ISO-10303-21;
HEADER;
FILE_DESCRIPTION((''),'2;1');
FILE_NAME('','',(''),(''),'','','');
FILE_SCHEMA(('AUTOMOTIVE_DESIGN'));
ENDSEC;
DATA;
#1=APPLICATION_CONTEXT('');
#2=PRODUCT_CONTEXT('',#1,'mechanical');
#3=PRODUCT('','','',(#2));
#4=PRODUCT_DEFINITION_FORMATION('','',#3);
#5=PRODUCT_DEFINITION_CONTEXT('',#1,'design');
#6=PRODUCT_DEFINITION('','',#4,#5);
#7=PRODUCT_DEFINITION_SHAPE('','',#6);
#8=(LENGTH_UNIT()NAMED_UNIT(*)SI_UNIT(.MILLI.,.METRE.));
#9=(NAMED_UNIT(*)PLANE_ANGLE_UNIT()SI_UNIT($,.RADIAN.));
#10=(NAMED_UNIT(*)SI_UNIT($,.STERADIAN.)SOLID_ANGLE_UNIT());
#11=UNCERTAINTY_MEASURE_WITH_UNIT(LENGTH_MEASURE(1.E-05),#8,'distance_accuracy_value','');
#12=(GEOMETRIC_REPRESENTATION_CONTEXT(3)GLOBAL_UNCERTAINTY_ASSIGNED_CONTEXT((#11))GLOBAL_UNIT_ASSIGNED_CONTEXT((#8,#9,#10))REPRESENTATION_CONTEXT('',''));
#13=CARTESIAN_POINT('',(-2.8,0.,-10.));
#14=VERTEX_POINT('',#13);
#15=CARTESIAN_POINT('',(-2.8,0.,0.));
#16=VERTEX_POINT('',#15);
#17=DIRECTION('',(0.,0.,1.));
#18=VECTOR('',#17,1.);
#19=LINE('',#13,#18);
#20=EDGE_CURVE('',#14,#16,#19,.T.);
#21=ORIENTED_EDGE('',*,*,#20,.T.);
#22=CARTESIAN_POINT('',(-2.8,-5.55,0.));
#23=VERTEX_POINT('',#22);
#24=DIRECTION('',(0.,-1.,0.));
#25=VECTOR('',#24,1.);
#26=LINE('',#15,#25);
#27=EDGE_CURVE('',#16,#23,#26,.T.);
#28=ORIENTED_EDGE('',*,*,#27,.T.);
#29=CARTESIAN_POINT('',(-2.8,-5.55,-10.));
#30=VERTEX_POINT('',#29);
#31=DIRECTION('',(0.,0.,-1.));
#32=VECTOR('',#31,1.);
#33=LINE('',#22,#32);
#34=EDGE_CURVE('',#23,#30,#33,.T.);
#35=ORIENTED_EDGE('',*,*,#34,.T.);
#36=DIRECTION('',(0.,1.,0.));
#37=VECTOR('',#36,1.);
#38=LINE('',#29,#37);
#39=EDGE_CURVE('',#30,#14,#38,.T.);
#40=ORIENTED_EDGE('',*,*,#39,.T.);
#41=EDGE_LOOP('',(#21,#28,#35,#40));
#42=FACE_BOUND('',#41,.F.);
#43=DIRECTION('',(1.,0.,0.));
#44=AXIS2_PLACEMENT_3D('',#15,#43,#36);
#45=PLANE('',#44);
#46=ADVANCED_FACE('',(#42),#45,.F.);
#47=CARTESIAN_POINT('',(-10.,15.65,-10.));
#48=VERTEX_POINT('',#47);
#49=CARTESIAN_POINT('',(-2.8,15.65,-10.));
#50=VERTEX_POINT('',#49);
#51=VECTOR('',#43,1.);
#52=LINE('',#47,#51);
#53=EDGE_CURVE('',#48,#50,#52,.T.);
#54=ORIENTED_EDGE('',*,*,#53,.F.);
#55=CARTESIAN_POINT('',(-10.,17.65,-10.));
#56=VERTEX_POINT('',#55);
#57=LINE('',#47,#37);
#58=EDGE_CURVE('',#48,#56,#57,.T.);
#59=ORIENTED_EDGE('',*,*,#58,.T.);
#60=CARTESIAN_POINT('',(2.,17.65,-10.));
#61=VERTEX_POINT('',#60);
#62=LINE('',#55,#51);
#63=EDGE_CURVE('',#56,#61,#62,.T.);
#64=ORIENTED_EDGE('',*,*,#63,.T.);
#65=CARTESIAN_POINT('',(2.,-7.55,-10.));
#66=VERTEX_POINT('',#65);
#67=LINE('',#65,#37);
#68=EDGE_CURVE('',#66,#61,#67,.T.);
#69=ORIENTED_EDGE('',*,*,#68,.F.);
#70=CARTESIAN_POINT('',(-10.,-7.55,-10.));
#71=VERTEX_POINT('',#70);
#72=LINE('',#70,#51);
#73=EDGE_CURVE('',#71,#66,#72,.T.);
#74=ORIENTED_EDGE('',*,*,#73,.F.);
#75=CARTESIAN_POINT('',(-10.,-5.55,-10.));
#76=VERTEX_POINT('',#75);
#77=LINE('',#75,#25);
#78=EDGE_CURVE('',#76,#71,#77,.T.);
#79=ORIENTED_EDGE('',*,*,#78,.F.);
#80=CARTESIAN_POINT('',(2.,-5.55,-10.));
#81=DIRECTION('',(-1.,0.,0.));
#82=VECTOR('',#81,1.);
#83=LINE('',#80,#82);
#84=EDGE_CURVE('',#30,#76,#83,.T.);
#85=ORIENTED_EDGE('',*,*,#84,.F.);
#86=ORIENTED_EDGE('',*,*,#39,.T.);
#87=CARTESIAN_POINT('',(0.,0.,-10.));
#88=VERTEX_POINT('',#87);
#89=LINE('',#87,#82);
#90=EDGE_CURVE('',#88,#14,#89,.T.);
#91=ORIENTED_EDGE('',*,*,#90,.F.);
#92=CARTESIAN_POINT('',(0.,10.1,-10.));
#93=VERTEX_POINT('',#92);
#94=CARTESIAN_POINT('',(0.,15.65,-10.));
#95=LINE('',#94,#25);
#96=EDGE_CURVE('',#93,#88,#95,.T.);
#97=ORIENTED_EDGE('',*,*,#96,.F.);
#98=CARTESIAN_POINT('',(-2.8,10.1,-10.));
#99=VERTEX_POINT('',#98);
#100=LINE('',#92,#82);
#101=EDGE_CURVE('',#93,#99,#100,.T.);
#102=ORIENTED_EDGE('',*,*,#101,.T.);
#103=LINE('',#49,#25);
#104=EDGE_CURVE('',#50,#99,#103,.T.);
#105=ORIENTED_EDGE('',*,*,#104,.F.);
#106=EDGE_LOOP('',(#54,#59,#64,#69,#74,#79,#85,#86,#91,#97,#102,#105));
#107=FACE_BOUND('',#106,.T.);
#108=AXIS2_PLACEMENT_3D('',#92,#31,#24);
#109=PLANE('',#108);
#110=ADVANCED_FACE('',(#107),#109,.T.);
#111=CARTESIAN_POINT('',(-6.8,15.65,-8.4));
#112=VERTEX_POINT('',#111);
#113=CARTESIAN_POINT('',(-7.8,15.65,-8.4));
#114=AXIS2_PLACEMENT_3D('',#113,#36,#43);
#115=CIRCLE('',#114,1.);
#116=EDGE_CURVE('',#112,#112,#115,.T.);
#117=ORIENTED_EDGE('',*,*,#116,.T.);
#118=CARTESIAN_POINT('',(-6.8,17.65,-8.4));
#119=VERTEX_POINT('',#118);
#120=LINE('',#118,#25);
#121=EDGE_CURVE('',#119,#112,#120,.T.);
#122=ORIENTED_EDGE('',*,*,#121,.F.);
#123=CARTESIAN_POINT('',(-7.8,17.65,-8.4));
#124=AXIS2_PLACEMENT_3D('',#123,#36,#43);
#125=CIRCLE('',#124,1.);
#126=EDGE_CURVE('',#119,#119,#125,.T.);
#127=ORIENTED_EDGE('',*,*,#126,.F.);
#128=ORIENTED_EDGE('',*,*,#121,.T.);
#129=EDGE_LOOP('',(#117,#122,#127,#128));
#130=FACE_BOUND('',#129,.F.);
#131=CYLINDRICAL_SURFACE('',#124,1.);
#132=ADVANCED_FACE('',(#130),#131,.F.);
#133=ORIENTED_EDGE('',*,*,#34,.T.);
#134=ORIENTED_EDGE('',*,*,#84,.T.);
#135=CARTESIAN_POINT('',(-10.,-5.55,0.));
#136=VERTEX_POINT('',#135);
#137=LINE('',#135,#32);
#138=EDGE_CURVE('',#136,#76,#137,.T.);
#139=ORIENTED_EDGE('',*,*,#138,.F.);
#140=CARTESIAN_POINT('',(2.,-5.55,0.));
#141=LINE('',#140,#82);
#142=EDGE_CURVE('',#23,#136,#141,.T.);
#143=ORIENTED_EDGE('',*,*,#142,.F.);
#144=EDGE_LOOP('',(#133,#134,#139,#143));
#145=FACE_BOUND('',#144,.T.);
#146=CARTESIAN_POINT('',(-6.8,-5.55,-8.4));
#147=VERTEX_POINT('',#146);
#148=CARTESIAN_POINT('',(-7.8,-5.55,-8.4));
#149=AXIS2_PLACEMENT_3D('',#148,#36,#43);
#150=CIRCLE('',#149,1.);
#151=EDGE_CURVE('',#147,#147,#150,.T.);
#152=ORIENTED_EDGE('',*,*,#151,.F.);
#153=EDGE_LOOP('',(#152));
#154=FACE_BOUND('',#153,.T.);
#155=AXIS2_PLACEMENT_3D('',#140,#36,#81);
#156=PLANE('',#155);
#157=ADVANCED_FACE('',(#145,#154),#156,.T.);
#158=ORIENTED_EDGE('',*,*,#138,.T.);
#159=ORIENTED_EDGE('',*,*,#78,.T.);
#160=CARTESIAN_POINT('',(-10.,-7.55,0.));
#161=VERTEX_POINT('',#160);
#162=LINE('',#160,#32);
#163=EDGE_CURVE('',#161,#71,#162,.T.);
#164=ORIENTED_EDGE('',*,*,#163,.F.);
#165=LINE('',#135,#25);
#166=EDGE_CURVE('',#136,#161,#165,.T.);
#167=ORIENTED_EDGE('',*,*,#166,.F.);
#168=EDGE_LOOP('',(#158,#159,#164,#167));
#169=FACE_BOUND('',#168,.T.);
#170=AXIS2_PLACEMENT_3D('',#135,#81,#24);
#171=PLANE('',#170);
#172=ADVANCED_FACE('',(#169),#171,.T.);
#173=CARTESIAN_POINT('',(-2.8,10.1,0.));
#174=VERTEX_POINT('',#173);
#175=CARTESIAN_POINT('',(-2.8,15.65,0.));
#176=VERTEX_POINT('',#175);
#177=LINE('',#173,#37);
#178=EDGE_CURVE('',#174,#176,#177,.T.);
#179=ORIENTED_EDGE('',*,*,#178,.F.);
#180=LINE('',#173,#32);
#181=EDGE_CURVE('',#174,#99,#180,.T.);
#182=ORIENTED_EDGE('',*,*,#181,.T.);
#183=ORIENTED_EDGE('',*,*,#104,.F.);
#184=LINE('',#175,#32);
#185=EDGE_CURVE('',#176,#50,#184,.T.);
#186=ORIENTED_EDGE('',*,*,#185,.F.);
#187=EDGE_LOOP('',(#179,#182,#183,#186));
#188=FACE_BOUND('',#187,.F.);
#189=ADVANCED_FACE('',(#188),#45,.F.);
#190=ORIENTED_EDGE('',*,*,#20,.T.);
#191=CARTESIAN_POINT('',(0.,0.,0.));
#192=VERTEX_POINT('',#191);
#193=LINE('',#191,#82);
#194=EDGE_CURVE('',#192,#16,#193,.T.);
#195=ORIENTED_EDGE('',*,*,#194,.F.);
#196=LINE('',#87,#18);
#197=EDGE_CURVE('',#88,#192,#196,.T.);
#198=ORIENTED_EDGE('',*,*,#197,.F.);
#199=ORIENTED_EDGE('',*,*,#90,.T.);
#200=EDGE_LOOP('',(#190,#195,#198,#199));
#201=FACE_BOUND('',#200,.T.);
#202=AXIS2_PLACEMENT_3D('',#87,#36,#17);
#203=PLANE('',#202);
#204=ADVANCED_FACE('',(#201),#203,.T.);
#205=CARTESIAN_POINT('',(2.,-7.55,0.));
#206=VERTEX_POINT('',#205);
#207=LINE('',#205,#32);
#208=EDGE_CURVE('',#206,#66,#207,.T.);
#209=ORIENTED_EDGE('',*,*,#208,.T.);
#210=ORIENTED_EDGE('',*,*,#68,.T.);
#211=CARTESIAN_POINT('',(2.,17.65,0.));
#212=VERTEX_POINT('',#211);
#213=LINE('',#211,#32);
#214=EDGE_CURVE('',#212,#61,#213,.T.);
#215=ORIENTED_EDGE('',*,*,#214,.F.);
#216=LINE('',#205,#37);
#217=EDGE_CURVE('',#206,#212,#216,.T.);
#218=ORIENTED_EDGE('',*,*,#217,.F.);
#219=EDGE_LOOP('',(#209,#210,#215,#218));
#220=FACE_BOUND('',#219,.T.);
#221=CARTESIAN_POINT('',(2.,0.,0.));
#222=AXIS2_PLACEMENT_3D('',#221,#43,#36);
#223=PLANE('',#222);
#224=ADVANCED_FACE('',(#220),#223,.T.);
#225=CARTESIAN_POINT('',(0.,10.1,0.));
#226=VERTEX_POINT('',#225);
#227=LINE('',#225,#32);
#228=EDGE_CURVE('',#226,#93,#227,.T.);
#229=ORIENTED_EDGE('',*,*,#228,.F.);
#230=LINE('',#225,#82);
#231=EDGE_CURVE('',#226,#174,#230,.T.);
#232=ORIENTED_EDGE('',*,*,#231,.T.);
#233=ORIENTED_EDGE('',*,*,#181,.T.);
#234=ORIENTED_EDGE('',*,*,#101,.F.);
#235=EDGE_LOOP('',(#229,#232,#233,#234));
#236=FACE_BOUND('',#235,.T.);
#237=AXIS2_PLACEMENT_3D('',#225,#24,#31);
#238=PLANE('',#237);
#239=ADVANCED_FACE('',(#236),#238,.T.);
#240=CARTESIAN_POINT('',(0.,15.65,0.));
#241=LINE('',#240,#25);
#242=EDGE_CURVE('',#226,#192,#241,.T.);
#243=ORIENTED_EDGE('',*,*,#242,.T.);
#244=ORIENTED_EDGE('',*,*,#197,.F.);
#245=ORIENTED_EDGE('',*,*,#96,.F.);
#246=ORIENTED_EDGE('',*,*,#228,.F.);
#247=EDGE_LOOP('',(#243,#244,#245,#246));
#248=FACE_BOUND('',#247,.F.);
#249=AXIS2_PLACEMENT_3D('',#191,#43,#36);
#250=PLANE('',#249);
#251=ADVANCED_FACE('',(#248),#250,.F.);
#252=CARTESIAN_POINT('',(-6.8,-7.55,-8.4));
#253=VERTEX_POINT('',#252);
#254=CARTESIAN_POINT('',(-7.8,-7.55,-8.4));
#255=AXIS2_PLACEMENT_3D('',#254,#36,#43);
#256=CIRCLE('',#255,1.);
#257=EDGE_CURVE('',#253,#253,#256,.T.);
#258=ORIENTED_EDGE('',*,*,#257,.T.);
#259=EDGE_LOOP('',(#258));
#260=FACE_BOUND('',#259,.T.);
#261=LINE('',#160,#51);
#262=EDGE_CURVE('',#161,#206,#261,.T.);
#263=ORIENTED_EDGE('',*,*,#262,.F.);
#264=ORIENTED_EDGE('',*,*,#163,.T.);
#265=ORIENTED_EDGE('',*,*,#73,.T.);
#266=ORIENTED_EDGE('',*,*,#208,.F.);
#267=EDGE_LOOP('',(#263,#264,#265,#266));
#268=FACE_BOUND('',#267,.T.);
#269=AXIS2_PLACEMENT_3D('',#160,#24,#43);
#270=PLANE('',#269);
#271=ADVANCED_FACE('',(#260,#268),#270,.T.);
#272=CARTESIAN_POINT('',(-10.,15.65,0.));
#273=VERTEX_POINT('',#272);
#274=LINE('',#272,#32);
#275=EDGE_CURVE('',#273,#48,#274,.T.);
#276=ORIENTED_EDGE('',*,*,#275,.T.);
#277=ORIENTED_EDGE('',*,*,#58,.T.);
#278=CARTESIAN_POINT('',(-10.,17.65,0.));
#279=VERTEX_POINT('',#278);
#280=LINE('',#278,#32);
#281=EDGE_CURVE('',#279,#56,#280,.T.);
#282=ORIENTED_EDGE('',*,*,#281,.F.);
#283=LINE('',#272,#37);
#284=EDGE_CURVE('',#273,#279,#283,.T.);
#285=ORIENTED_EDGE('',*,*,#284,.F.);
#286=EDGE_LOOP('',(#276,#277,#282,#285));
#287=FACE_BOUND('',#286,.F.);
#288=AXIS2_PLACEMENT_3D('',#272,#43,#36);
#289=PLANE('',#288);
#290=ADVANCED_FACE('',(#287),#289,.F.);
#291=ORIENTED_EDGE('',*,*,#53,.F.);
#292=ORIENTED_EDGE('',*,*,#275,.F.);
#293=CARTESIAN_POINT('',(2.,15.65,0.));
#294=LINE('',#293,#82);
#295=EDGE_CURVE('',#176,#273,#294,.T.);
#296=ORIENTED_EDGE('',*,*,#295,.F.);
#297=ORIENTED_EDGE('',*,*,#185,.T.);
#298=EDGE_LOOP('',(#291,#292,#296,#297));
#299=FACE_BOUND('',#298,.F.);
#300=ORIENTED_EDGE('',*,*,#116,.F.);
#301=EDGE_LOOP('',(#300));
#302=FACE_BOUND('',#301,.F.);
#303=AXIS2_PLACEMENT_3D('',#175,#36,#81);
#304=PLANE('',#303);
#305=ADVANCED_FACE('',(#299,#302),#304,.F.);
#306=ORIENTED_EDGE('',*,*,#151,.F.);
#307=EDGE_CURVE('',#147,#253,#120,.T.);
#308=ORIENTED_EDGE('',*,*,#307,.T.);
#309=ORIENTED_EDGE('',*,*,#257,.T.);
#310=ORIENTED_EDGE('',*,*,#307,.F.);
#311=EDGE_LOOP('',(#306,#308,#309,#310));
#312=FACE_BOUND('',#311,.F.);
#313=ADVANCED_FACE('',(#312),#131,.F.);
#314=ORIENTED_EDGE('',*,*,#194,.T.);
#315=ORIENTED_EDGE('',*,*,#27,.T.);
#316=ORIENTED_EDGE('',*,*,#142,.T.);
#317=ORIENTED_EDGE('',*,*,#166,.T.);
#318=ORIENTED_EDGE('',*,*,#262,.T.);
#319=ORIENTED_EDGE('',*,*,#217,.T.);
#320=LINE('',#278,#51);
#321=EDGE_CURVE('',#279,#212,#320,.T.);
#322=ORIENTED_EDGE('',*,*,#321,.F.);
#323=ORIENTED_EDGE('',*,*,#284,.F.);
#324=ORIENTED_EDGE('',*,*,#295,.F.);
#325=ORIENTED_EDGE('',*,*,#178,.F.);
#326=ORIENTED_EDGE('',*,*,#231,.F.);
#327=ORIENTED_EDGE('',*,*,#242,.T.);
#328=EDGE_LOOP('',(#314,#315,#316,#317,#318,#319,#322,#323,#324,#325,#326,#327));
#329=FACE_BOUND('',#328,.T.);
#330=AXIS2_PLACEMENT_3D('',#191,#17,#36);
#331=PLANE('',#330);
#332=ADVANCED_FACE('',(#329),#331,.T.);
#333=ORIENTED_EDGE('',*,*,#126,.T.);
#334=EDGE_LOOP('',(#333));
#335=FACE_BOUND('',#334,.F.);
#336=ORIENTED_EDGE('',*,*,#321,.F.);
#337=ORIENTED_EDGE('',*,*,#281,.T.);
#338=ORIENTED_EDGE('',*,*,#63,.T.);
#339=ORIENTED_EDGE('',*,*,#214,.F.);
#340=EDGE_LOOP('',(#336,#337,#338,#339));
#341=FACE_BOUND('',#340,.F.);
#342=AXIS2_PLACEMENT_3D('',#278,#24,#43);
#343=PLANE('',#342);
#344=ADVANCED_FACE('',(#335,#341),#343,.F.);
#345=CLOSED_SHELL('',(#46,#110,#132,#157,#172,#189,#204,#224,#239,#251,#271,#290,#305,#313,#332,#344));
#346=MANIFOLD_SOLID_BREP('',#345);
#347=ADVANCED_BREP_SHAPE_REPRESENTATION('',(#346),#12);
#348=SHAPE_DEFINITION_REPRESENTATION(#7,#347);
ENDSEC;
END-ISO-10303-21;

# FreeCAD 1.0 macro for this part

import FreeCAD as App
import Part
import Sketcher

V = App.Vector


def add_polygon(sketch, points):
    """Adds a closed chain of lines whose ends are joined by coincident constraints."""
    first, n = sketch.GeometryCount, len(points)
    for a, b in zip(points, points[1:] + points[:1]):
        sketch.addGeometry(Part.LineSegment(App.Vector(*a, 0), App.Vector(*b, 0)), False)
    for i in range(n):
        sketch.addConstraint(Sketcher.Constraint("Coincident", first + i, 2, first + (i + 1) % n, 1))

doc = App.newDocument("Part")
body = doc.addObject("PartDesign::Body", "Body")

# Sketch on YZ plane
sketch1 = body.newObject("Sketcher::SketchObject", "Sketch")
sketch1.AttachmentSupport = (doc.getObject("YZ_Plane"), [""])
sketch1.MapMode = "FlatFace"
add_polygon(sketch1, [(-6, 0), (-6, -10), (16, -10), (16, 0)])  # lines 0-3
sketch1.addConstraint(Sketcher.Constraint("Vertical", 0))
sketch1.addConstraint(Sketcher.Constraint("Horizontal", 1))
sketch1.addConstraint(Sketcher.Constraint("Vertical", 2))
sketch1.addConstraint(Sketcher.Constraint("Horizontal", 3))
sketch1.addConstraint(Sketcher.Constraint("PointOnObject", 2, 2, -1))
sketch1.addConstraint(Sketcher.Constraint("DistanceY", 0, 2, 0, 1, 10.0))
sketch1.addConstraint(Sketcher.Constraint("DistanceX", 0, 2, -1, 1, 5.55))
sketch1.addConstraint(Sketcher.Constraint("DistanceX", 1, 1, 1, 2, 21.2))
pad1 = body.newObject("PartDesign::Pad", "Pad")
pad1.Profile = sketch1
pad1.Length = 2

# Sketch on YZ plane
sketch2 = body.newObject("Sketcher::SketchObject", "Sketch001")
sketch2.AttachmentSupport = (doc.getObject("YZ_Plane"), [""])
sketch2.MapMode = "FlatFace"
add_polygon(sketch2, [(0, -10), (0, 0), (-6, 0), (-6, -10)])  # lines 0-3
add_polygon(sketch2, [(16, 0), (10, 0), (10, -10), (16, -10)])  # lines 4-7
sketch2.addConstraint(Sketcher.Constraint("Vertical", 0))
sketch2.addConstraint(Sketcher.Constraint("Horizontal", 1))
sketch2.addConstraint(Sketcher.Constraint("Vertical", 2))
sketch2.addConstraint(Sketcher.Constraint("Horizontal", 3))
sketch2.addConstraint(Sketcher.Constraint("Horizontal", 4))
sketch2.addConstraint(Sketcher.Constraint("Vertical", 5))
sketch2.addConstraint(Sketcher.Constraint("Horizontal", 6))
sketch2.addConstraint(Sketcher.Constraint("Vertical", 7))
sketch2.addConstraint(Sketcher.Constraint("Coincident", 0, 2, -1, 1))
sketch2.addConstraint(Sketcher.Constraint("PointOnObject", 4, 2, -1))
sketch2.addConstraint(Sketcher.Constraint("Horizontal", 3, 2, 5, 2))
sketch2.addConstraint(Sketcher.Constraint("Equal", 3, 4))
sketch2.addConstraint(Sketcher.Constraint("DistanceY", 0, 1, 0, 2, 10.0))
sketch2.addConstraint(Sketcher.Constraint("DistanceX", 1, 2, 1, 1, 5.55))
sketch2.addConstraint(Sketcher.Constraint("DistanceX", -1, 1, 4, 2, 10.1))
pad2 = body.newObject("PartDesign::Pad", "Pad001")
pad2.Profile = sketch2
pad2.Length = 2.8
pad2.Reversed = True

# Sketch on XY plane
sketch3 = body.newObject("Sketcher::SketchObject", "Sketch002")
sketch3.AttachmentSupport = (doc.getObject("XY_Plane"), [""])
sketch3.MapMode = "FlatFace"
add_polygon(sketch3, [(-10, 15.7), (2, 15.7), (2, 17.6), (-10, 17.6)])  # lines 0-3
add_polygon(sketch3, [(2, -7.5), (2, -5.5), (-10, -5.5), (-10, -7.5)])  # lines 4-7
sketch3.addConstraint(Sketcher.Constraint("Horizontal", 0))
sketch3.addConstraint(Sketcher.Constraint("Vertical", 1))
sketch3.addConstraint(Sketcher.Constraint("Horizontal", 2))
sketch3.addConstraint(Sketcher.Constraint("Vertical", 3))
sketch3.addConstraint(Sketcher.Constraint("Vertical", 4))
sketch3.addConstraint(Sketcher.Constraint("Horizontal", 5))
sketch3.addConstraint(Sketcher.Constraint("Vertical", 6))
sketch3.addConstraint(Sketcher.Constraint("Horizontal", 7))
sketch3.addConstraint(Sketcher.Constraint("Vertical", 1, 2, 4, 2))
sketch3.addConstraint(Sketcher.Constraint("Vertical", 3, 2, 5, 2))
sketch3.addConstraint(Sketcher.Constraint("Equal", 3, 4))
sketch3.addConstraint(Sketcher.Constraint("DistanceX", 0, 1, 0, 2, 12.0))
sketch3.addConstraint(Sketcher.Constraint("DistanceY", 1, 1, 1, 2, 2.0))
sketch3.addConstraint(Sketcher.Constraint("DistanceX", -1, 1, 0, 2, 2.0))
sketch3.addConstraint(Sketcher.Constraint("DistanceY", 4, 2, 0, 2, 21.2))
sketch3.addConstraint(Sketcher.Constraint("DistanceY", -1, 1, 0, 2, 15.65))
pad3 = body.newObject("PartDesign::Pad", "Pad002")
pad3.Profile = sketch3
pad3.Length = 10
pad3.Reversed = True

# Sketch on XZ plane
sketch4 = body.newObject("Sketcher::SketchObject", "Sketch003")
sketch4.AttachmentSupport = (doc.getObject("XZ_Plane"), [""])
sketch4.MapMode = "FlatFace"
sketch4.AttachmentOffset = App.Placement(V(0, 0, -17.65), App.Rotation())
sketch4.addGeometry(Part.Circle(V(-7.8, -8.4, 0), V(0, 0, 1), 1), False)
sketch4.addConstraint(Sketcher.Constraint("Diameter", 0, 2.0))
sketch4.addConstraint(Sketcher.Constraint("DistanceX", 0, 3, -1, 1, 7.8))
sketch4.addConstraint(Sketcher.Constraint("DistanceY", 0, 3, -1, 1, 8.4))
pocket1 = body.newObject("PartDesign::Pocket", "Pocket")
pocket1.Profile = sketch4
pocket1.Length = 25.2
pocket1.Reversed = True

doc.recompute()
